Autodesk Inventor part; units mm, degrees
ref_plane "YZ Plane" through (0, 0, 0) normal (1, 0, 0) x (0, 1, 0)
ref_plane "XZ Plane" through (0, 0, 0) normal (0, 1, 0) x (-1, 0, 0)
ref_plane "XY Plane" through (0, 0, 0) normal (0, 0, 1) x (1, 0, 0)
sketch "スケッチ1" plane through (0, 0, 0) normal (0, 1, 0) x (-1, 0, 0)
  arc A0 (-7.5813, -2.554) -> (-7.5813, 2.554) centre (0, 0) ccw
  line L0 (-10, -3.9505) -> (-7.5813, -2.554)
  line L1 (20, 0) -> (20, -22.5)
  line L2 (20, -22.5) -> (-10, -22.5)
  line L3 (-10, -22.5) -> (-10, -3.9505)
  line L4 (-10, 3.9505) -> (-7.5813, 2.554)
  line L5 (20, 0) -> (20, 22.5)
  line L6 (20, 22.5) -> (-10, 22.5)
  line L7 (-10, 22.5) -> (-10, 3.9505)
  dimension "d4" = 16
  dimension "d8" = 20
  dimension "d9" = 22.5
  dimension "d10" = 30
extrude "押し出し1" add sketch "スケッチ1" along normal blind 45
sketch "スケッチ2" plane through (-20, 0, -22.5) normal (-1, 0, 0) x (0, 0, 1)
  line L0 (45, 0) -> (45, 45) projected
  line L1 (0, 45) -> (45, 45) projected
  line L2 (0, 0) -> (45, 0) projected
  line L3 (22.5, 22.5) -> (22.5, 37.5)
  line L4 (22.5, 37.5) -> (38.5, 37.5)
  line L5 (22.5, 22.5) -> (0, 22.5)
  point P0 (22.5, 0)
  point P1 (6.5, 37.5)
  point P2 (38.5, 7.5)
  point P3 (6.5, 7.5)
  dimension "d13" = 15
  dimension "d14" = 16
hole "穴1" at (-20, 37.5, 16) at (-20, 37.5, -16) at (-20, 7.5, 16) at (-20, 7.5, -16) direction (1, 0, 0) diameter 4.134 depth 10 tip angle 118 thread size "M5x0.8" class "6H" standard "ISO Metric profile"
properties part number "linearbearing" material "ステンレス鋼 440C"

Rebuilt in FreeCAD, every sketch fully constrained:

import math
import FreeCAD as App
import Part
import Sketcher
from FreeCAD import Vector
Q = App.Units.Quantity

doc = App.newDocument("Part")
body = doc.addObject("PartDesign::Body", "Body")

# Sketch on XZ plane
sketch1 = doc.addObject("Sketcher::SketchObject", "Sketch")
body.addObject(sketch1)
sketch1.AttachmentSupport = (doc.XZ_Plane, [""])
sketch1.MapMode = "FlatFace"
sketch1.addGeometry([
    Part.ArcOfCircle(Part.Circle(Vector(0, 0, 0), Vector(0, 0, 1), 7.999939), math.radians(18.617721), math.radians(341.382279)),  # 0
    Part.LineSegment(Vector(7.5813, -2.554, 0), Vector(10, -3.9505, 0)),  # 1
    Part.LineSegment(Vector(10, -3.9505, 0), Vector(10, -22.5, 0)),  # 2
    Part.LineSegment(Vector(10, -22.5, 0), Vector(-20, -22.5, 0)),  # 3
    Part.LineSegment(Vector(-20, -22.5, 0), Vector(-20, 22.5, 0)),  # 4
    Part.LineSegment(Vector(-20, 22.5, 0), Vector(10, 22.5, 0)),  # 5
    Part.LineSegment(Vector(10, 22.5, 0), Vector(10, 3.9505, 0)),  # 6
    Part.LineSegment(Vector(10, 3.9505, 0), Vector(7.5813, 2.554, 0)),  # 7
], False)
sketch1.addConstraint([
    Sketcher.Constraint("Coincident", 0, 2, 1, 1),
    Sketcher.Constraint("Coincident", 1, 2, 2, 1),
    Sketcher.Constraint("Coincident", 2, 2, 3, 1),
    Sketcher.Constraint("Coincident", 3, 2, 4, 1),
    Sketcher.Constraint("Coincident", 4, 2, 5, 1),
    Sketcher.Constraint("Coincident", 5, 2, 6, 1),
    Sketcher.Constraint("Coincident", 6, 2, 7, 1),
    Sketcher.Constraint("Coincident", 7, 2, 0, 1),
    Sketcher.Constraint("Vertical", 2),
    Sketcher.Constraint("Horizontal", 3),
    Sketcher.Constraint("Vertical", 4),
    Sketcher.Constraint("Horizontal", 5),
    Sketcher.Constraint("Vertical", 6),
    Sketcher.Constraint("Coincident", 0, 3, -1, 1),
    Sketcher.Constraint("Symmetric", 2, 2, 5, 2, -1),
    Sketcher.Constraint("Vertical", 0, 2, 7, 2),
    Sketcher.Constraint("Equal", 2, 6),
    Sketcher.Constraint("Radius", 0, Q("8 mm")),
    Sketcher.Constraint("DistanceX", 3, 2, 3, 1, Q("30 mm")),
    Sketcher.Constraint("DistanceX", 3, 2, -1, 1, Q("20 mm")),
    Sketcher.Constraint("DistanceY", 2, 2, -1, 1, Q("22.5 mm")),
    Sketcher.Constraint("Angle", 1, Q("-30.001 deg")),
    Sketcher.Constraint("Distance", 1, Q("2.793 mm")),
])
pad1 = doc.addObject("PartDesign::Pad", "Pad")
body.addObject(pad1)
pad1.Profile = sketch1
pad1.Length = 45
pad1.Reversed = True

# Sketch on YZ plane
sketch2 = doc.addObject("Sketcher::SketchObject", "Sketch001")
body.addObject(sketch2)
sketch2.AttachmentSupport = (doc.YZ_Plane, [""])
sketch2.MapMode = "FlatFace"
sketch2.AttachmentOffset = App.Placement(Vector(0, 0, -20), App.Rotation())
sketch2.addGeometry([
    Part.Circle(Vector(37.5, 16, 0), Vector(0, 0, 1), 2.067),
    Part.Circle(Vector(37.5, -16, 0), Vector(0, 0, 1), 2.067),
    Part.Circle(Vector(7.5, 16, 0), Vector(0, 0, 1), 2.067),
    Part.Circle(Vector(7.5, -16, 0), Vector(0, 0, 1), 2.067),
], False)
sketch2.addConstraint([
    Sketcher.Constraint("Equal", 0, 1),
    Sketcher.Constraint("Equal", 1, 2),
    Sketcher.Constraint("Equal", 2, 3),
    Sketcher.Constraint("Symmetric", 0, 3, 1, 3, -1),
    Sketcher.Constraint("Symmetric", 2, 3, 3, 3, -1),
    Sketcher.Constraint("Horizontal", 0, 3, 2, 3),
    Sketcher.Constraint("Diameter", 0, Q("4.134 mm")),
    Sketcher.Constraint("DistanceY", -1, 1, 0, 3, Q("16 mm")),
    Sketcher.Constraint("DistanceX", 2, 3, 0, 3, Q("30 mm")),
    Sketcher.Constraint("DistanceX", -1, 1, 0, 3, Q("37.5 mm")),
])
doc.recompute()
hole = doc.addObject("PartDesign::Hole", "Hole")
body.addObject(hole)
hole.Profile = sketch2
hole.ThreadType = "None"
hole.Diameter = 4.134
hole.DepthType = "Dimension"
hole.Depth = 10
hole.DrillPoint = "Angled"
hole.DrillPointAngle = 118
hole.Reversed = True

doc.recompute()
